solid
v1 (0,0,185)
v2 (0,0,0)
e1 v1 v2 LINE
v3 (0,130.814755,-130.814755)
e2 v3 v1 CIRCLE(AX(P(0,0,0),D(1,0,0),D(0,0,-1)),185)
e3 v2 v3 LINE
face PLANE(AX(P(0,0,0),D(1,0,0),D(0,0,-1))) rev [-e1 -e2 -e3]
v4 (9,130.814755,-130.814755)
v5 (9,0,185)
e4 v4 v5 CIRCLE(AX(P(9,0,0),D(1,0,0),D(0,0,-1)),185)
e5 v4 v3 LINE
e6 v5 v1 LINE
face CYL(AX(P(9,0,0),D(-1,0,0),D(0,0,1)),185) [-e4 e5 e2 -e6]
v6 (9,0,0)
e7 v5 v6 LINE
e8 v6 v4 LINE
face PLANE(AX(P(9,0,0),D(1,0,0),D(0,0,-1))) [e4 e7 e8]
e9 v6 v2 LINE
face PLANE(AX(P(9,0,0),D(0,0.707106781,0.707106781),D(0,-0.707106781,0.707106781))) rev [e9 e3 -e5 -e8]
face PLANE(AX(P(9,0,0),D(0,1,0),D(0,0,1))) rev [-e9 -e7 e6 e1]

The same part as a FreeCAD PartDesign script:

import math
import FreeCAD as App
import Part
import Sketcher
Q = App.Units.Quantity

doc = App.newDocument("Part")
params = doc.addObject("Spreadsheet::Sheet", "Params")
for row, (alias, value) in enumerate([
    ("sketch1_radius", "185 mm"),
    ("pad1_length", "9 mm"),
], start=1):
    params.set(f"A{row}", alias)
    params.set(f"B{row}", "=" + value)
    params.setAlias(f"B{row}", alias)

body = doc.addObject("PartDesign::Body", "Body")

# Sketch on YZ plane
sketch1 = body.newObject("Sketcher::SketchObject", "Sketch")
sketch1.AttachmentSupport = (doc.getObject("YZ_Plane"), [""])
sketch1.MapMode = "FlatFace"
sketch1.addGeometry([
    Part.LineSegment(App.Vector(0, 185, 0), App.Vector(0, 0, 0)),
    Part.LineSegment(App.Vector(0, 0, 0), App.Vector(131, -131, 0)),
    Part.ArcOfCircle(Part.Circle(App.Vector(0, 0, 0), App.Vector(0, 0, 1), 185), math.radians(-45), math.radians(90)),
], False)
sketch1.addConstraint([
    Sketcher.Constraint("Coincident", 0, 2, 1, 1),
    Sketcher.Constraint("Coincident", 1, 2, 2, 1),
    Sketcher.Constraint("Coincident", 2, 2, 0, 1),
    Sketcher.Constraint("Vertical", 0),
    Sketcher.Constraint("Coincident", 2, 3, -1, 1),
    Sketcher.Constraint("Coincident", 0, 2, -1, 1),
    Sketcher.Constraint("Radius", 2, Q("185 mm")),
    Sketcher.Constraint("Angle", 1, Q("-45 deg")),
])
sketch1.setExpression("Constraints[6]", "Params.sketch1_radius")
pad1 = body.newObject("PartDesign::Pad", "Pad")
pad1.Profile = sketch1
pad1.setExpression("Length", "Params.pad1_length")

doc.recompute()
